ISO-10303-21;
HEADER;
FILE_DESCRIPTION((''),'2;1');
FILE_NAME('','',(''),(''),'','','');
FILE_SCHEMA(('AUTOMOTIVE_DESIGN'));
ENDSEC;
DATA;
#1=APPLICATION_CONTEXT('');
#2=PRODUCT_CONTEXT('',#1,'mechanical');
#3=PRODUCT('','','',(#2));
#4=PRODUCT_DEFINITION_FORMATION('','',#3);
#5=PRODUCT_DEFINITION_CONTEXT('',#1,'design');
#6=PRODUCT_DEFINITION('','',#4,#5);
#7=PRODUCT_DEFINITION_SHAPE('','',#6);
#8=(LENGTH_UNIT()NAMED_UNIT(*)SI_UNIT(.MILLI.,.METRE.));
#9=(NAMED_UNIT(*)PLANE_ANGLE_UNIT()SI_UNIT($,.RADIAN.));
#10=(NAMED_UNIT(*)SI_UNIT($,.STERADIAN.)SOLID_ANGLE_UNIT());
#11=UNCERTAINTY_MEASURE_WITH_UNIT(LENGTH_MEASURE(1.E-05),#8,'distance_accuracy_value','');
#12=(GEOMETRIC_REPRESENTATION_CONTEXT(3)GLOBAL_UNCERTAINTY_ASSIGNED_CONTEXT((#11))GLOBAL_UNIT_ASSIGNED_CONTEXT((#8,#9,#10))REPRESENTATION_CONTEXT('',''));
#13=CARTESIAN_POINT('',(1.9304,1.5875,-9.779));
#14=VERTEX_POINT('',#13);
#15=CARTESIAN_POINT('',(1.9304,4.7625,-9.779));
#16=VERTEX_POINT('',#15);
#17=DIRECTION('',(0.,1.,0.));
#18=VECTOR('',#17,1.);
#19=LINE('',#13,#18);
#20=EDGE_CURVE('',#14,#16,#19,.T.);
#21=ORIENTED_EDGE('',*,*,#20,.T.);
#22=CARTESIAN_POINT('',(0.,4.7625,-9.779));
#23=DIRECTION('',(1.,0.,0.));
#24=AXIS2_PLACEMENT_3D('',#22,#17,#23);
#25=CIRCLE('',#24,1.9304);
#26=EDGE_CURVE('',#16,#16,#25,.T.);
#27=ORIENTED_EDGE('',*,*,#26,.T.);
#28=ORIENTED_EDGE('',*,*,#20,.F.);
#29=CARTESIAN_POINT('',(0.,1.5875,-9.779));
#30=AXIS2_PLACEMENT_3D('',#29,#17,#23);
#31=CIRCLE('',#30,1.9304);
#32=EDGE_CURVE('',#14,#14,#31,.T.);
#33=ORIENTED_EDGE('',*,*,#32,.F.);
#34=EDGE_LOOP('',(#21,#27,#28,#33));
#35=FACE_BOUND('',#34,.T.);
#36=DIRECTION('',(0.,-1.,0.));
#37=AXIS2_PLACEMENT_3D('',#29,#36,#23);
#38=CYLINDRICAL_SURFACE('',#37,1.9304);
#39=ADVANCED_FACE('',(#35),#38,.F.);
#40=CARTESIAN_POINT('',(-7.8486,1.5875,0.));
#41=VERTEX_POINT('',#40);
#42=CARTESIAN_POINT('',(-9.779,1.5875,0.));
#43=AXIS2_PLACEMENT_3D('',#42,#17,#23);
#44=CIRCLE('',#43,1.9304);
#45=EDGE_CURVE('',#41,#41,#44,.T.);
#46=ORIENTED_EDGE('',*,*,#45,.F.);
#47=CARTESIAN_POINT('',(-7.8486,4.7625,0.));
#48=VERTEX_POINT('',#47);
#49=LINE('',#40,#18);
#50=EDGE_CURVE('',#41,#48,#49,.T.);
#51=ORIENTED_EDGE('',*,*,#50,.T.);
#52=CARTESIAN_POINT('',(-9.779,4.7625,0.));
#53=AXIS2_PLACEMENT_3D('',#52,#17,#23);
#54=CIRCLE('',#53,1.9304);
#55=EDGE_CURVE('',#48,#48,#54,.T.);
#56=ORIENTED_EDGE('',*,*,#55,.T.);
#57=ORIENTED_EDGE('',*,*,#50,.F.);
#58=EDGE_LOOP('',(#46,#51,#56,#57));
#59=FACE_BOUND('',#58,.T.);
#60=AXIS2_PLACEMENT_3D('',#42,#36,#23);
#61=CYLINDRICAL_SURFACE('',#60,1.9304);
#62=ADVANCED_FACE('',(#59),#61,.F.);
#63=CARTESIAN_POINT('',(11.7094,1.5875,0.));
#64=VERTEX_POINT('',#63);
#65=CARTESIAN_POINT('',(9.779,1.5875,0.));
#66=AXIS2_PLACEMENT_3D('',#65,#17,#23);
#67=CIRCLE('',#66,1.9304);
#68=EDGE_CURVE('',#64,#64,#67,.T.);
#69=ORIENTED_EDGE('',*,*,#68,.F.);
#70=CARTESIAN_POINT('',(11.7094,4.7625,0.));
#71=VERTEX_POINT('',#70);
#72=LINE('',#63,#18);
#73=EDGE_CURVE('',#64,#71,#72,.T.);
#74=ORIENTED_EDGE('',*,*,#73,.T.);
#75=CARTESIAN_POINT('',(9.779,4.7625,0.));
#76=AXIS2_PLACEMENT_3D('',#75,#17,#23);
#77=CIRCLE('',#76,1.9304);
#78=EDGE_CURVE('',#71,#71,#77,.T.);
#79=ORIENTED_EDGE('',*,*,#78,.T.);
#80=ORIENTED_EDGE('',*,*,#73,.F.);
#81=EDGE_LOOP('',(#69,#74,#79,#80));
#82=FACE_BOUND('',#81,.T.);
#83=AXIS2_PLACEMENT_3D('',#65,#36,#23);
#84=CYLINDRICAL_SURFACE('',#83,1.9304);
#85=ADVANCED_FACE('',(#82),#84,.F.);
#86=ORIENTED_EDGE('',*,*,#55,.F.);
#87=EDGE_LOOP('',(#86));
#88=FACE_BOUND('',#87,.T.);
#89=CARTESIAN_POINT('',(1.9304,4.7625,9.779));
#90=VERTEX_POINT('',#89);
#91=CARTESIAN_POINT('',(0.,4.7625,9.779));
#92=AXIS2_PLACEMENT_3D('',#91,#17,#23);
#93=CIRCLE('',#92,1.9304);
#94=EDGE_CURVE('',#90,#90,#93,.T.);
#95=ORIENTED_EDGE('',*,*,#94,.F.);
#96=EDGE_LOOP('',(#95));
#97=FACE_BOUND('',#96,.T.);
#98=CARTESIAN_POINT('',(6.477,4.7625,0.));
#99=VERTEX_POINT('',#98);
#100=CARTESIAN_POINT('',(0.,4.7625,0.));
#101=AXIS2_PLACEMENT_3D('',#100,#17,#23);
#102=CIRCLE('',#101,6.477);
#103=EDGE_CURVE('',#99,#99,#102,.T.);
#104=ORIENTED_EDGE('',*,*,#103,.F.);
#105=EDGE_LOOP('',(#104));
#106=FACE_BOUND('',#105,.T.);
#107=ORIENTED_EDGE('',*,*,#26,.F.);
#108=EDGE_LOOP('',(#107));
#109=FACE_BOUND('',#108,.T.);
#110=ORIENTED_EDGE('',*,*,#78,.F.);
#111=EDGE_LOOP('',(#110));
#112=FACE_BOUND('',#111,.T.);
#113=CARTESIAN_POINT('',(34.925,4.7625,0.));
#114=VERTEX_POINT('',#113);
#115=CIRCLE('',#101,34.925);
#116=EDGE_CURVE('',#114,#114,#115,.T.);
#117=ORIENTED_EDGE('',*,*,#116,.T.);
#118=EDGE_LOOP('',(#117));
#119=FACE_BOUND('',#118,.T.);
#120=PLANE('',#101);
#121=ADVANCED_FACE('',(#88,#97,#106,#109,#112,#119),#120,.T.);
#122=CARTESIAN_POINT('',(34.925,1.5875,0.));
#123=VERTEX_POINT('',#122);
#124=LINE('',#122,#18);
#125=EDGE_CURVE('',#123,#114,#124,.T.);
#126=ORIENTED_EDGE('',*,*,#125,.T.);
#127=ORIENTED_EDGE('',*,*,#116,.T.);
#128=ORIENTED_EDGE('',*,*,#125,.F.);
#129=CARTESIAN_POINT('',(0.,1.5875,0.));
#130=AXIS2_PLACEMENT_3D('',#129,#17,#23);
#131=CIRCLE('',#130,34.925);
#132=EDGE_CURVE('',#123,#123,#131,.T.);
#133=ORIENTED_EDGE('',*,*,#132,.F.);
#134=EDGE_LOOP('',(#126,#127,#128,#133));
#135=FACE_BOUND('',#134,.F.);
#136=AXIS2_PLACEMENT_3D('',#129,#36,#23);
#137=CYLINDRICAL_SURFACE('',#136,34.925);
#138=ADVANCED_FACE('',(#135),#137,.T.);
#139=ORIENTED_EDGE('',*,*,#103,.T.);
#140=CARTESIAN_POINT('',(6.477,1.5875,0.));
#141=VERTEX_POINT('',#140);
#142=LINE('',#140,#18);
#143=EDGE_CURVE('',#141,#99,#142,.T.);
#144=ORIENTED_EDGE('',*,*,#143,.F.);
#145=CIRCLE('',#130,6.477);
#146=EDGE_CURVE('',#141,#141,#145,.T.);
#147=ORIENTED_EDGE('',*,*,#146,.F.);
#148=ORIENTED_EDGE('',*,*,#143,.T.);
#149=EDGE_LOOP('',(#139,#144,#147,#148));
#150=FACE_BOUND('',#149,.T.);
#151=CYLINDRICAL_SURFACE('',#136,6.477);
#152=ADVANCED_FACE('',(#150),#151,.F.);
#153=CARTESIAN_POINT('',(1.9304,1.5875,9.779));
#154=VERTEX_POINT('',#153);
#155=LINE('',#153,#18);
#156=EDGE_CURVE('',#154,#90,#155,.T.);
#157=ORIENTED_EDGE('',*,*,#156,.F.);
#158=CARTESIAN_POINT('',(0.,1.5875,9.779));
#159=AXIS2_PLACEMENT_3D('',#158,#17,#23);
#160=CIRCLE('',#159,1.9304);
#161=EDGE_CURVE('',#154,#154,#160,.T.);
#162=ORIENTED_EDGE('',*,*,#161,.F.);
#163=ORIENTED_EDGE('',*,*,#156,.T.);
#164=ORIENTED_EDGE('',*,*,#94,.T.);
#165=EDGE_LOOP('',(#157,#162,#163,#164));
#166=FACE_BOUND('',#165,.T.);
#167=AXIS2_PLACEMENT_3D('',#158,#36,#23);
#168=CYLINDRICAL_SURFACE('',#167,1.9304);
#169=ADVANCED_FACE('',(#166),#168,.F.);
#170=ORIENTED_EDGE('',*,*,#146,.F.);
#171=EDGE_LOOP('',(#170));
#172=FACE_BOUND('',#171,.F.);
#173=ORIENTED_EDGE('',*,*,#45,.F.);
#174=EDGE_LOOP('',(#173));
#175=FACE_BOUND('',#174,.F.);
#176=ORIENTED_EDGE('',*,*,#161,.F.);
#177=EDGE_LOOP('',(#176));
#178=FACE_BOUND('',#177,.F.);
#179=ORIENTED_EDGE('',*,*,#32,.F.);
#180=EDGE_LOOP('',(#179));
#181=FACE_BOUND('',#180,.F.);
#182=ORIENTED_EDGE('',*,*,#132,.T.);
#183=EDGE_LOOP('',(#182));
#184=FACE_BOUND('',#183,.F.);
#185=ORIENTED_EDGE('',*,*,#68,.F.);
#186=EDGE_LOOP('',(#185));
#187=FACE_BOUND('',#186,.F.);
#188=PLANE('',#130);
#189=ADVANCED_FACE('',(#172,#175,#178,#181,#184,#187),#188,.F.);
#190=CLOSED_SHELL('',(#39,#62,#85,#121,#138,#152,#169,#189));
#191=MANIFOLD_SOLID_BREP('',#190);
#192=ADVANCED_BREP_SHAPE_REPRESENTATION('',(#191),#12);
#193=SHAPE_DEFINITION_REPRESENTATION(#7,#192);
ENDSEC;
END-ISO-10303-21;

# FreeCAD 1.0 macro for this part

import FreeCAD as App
import Part
import Sketcher
Q = App.Units.Quantity

doc = App.newDocument("Part")
params = doc.addObject("Spreadsheet::Sheet", "Params")
for row, (alias, value) in enumerate([
    ("sketch1_diameter", "2.75 in"),
    ("sketch1_diameter2", "0.51 in"),
    ("sketch1_diameter3", "0.152 in"),
    ("pad1_length", "0.125 in"),
], start=1):
    params.set(f"A{row}", alias)
    params.set(f"B{row}", "=" + value)
    params.setAlias(f"B{row}", alias)

body = doc.addObject("PartDesign::Body", "Body")

# Sketch on XZ plane
sketch1 = body.newObject("Sketcher::SketchObject", "Sketch")
sketch1.AttachmentSupport = (doc.getObject("XZ_Plane"), [""])
sketch1.MapMode = "FlatFace"
sketch1.AttachmentOffset = App.Placement(App.Vector(0, 0, -0.0625 * 25.4), App.Rotation())
sketch1.addGeometry([
    Part.Circle(App.Vector(0, 0, 0), App.Vector(0, 0, 1), 34.9),  # 0
    Part.Circle(App.Vector(0, 9.8, 0), App.Vector(0, 0, 1), 1.9),  # 1
    Part.Circle(App.Vector(-9.8, 0, 0), App.Vector(0, 0, 1), 1.9),  # 2
    Part.Circle(App.Vector(0, 0, 0), App.Vector(0, 0, 1), 6.5),  # 3
    Part.Circle(App.Vector(9.8, 0, 0), App.Vector(0, 0, 1), 1.9),  # 4
    Part.Circle(App.Vector(0, -9.8, 0), App.Vector(0, 0, 1), 1.9),  # 5
], False)
sketch1.addConstraint([
    Sketcher.Constraint("Coincident", 0, 3, -1, 1),
    Sketcher.Constraint("Coincident", 3, 3, -1, 1),
    Sketcher.Constraint("Equal", 1, 2),
    Sketcher.Constraint("Equal", 2, 4),
    Sketcher.Constraint("Equal", 4, 5),
    Sketcher.Constraint("Symmetric", 2, 3, 4, 3, -1, 1),
    Sketcher.Constraint("Symmetric", 1, 3, 5, 3, -1, 1),
    Sketcher.Constraint("PointOnObject", 1, 3, -2),
    Sketcher.Constraint("PointOnObject", 2, 3, -1),
    Sketcher.Constraint("Diameter", 0, Q("2.75 in")),
    Sketcher.Constraint("Diameter", 3, Q("0.51 in")),
    Sketcher.Constraint("Diameter", 1, Q("0.152 in")),
    Sketcher.Constraint("DistanceX", 2, 3, 4, 3, Q("0.77 in")),
    Sketcher.Constraint("DistanceY", 5, 3, 1, 3, Q("0.77 in")),
])
sketch1.setExpression("Constraints[9]", "Params.sketch1_diameter")
sketch1.setExpression("Constraints[10]", "Params.sketch1_diameter2")
sketch1.setExpression("Constraints[11]", "Params.sketch1_diameter3")
pad1 = body.newObject("PartDesign::Pad", "Pad")
pad1.Profile = sketch1
pad1.setExpression("Length", "Params.pad1_length")
pad1.Reversed = True

doc.recompute()
